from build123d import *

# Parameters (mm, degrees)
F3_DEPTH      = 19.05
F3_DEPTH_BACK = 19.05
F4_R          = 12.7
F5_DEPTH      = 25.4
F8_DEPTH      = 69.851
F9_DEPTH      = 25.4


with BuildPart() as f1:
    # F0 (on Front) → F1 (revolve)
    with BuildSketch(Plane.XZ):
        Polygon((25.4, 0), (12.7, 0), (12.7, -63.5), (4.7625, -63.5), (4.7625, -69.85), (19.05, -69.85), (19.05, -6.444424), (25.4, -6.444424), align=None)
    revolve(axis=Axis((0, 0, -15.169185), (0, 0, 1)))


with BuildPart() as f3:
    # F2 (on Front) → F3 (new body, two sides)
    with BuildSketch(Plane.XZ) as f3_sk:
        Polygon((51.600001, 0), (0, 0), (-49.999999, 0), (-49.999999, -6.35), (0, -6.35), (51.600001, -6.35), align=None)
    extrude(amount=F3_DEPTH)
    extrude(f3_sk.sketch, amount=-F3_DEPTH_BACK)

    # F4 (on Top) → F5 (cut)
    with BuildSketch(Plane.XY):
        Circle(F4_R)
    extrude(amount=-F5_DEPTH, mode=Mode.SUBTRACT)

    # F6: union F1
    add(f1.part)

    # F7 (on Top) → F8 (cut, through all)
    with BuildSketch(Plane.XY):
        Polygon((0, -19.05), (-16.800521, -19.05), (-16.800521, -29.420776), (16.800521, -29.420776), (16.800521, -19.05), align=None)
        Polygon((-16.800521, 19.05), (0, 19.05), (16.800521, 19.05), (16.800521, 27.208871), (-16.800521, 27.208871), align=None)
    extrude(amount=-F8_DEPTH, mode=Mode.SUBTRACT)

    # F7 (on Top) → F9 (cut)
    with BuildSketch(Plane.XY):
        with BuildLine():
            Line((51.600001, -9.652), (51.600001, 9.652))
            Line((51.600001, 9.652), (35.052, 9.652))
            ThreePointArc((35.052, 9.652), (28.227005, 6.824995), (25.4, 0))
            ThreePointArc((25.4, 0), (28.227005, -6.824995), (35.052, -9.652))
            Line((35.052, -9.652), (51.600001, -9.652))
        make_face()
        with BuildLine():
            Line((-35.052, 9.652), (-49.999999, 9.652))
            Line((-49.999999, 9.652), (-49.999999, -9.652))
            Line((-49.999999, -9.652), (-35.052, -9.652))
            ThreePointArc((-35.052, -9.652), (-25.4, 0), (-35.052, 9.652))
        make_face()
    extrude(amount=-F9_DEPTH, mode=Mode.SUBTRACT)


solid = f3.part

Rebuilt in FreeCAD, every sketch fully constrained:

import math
import FreeCAD as App
import Part
import Sketcher
from FreeCAD import Vector
Q = App.Units.Quantity

doc = App.newDocument("Part")
body = doc.addObject("PartDesign::Body", "Body")

# Sketch on XZ plane
sketch1 = doc.addObject("Sketcher::SketchObject", "Sketch")
body.addObject(sketch1)
sketch1.AttachmentSupport = (doc.XZ_Plane, [""])
sketch1.MapMode = "FlatFace"
sketch1.addGeometry([
    Part.LineSegment(Vector(25, 0, 0), Vector(13, 0, 0)),  # 0
    Part.LineSegment(Vector(13, 0, 0), Vector(13, -64, 0)),  # 1
    Part.LineSegment(Vector(13, -64, 0), Vector(5, -64, 0)),  # 2
    Part.LineSegment(Vector(5, -64, 0), Vector(5, -70, 0)),  # 3
    Part.LineSegment(Vector(5, -70, 0), Vector(19, -70, 0)),  # 4
    Part.LineSegment(Vector(19, -70, 0), Vector(19, -6, 0)),  # 5
    Part.LineSegment(Vector(19, -6, 0), Vector(25, -6, 0)),  # 6
    Part.LineSegment(Vector(25, -6, 0), Vector(25, 0, 0)),  # 7
], False)
sketch1.addConstraint([
    Sketcher.Constraint("Coincident", 0, 2, 1, 1),
    Sketcher.Constraint("Coincident", 1, 2, 2, 1),
    Sketcher.Constraint("Coincident", 2, 2, 3, 1),
    Sketcher.Constraint("Coincident", 3, 2, 4, 1),
    Sketcher.Constraint("Coincident", 4, 2, 5, 1),
    Sketcher.Constraint("Coincident", 5, 2, 6, 1),
    Sketcher.Constraint("Coincident", 6, 2, 7, 1),
    Sketcher.Constraint("Coincident", 7, 2, 0, 1),
    Sketcher.Constraint("Horizontal", 0),
    Sketcher.Constraint("Vertical", 1),
    Sketcher.Constraint("Horizontal", 2),
    Sketcher.Constraint("Vertical", 3),
    Sketcher.Constraint("Horizontal", 4),
    Sketcher.Constraint("Vertical", 5),
    Sketcher.Constraint("Horizontal", 6),
    Sketcher.Constraint("Vertical", 7),
    Sketcher.Constraint("PointOnObject", 0, 2, -1),
    Sketcher.Constraint("Equal", 6, 3),
    Sketcher.Constraint("DistanceX", 0, 2, 0, 1, Q("0.5 in")),
    Sketcher.Constraint("DistanceY", 1, 2, 1, 1, Q("2.5 in")),
    Sketcher.Constraint("DistanceX", -1, 1, 6, 2, Q("1 in")),
    Sketcher.Constraint("DistanceX", 6, 1, 6, 2, Q("0.25 in")),
    Sketcher.Constraint("DistanceX", 2, 2, 2, 1, Q("0.3125 in")),
    Sketcher.Constraint("DistanceY", 5, 1, 5, 2, 63.405576),
])
revolution = doc.addObject("PartDesign::Revolution", "Revolution")
body.addObject(revolution)
revolution.Profile = sketch1
revolution.ReferenceAxis = (sketch1, ["V_Axis"])
revolution.Angle = 360
body2 = doc.addObject("PartDesign::Body", "Body001")

# Sketch on XZ plane
sketch2 = doc.addObject("Sketcher::SketchObject", "Sketch001")
body2.addObject(sketch2)
sketch2.AttachmentSupport = (doc.getObject("XZ_Plane001"), [""])
sketch2.MapMode = "FlatFace"
sketch2.addGeometry([
    Part.LineSegment(Vector(52, 0, 0), Vector(-50, 0, 0)),
    Part.LineSegment(Vector(-50, 0, 0), Vector(-50, -6, 0)),
    Part.LineSegment(Vector(-50, -6, 0), Vector(52, -6, 0)),
    Part.LineSegment(Vector(52, -6, 0), Vector(52, 0, 0)),
], False)
sketch2.addConstraint([
    Sketcher.Constraint("Coincident", 0, 2, 1, 1),
    Sketcher.Constraint("Coincident", 1, 2, 2, 1),
    Sketcher.Constraint("Coincident", 2, 2, 3, 1),
    Sketcher.Constraint("Coincident", 3, 2, 0, 1),
    Sketcher.Constraint("Horizontal", 0),
    Sketcher.Constraint("Vertical", 1),
    Sketcher.Constraint("Horizontal", 2),
    Sketcher.Constraint("Vertical", 3),
    Sketcher.Constraint("PointOnObject", 0, 2, -1),
    Sketcher.Constraint("DistanceX", 0, 2, 0, 1, Q("4 in")),
    Sketcher.Constraint("DistanceY", 1, 2, 1, 1, Q("0.25 in")),
    Sketcher.Constraint("DistanceX", 0, 2, -1, 1, 49.999999),
])
pad1 = doc.addObject("PartDesign::Pad", "Pad")
body2.addObject(pad1)
pad1.Profile = sketch2
pad1.Type = "TwoLengths"
pad1.Length = Q("0.75 in")
pad1.Length2 = Q("0.75 in")

# Sketch on XY plane
sketch3 = doc.addObject("Sketcher::SketchObject", "Sketch002")
body2.addObject(sketch3)
sketch3.AttachmentSupport = (doc.getObject("XY_Plane001"), [""])
sketch3.MapMode = "FlatFace"
sketch3.addGeometry(Part.Circle(Vector(0, 0, 0), Vector(0, 0, 1), 13), False)
sketch3.addConstraint([
    Sketcher.Constraint("Coincident", 0, 3, -1, 1),
    Sketcher.Constraint("Diameter", 0, Q("1 in")),
])
pocket1 = doc.addObject("PartDesign::Pocket", "Pocket")
body2.addObject(pocket1)
pocket1.Profile = sketch3
pocket1.Length = Q("1 in")
doc.recompute()

boolean = doc.addObject("PartDesign::Boolean", "Boolean")
body2.addObject(boolean)
boolean.Type = "Fuse"
boolean.addObjects([body])

# Sketch on XY plane
sketch4 = doc.addObject("Sketcher::SketchObject", "Sketch003")
body2.addObject(sketch4)
sketch4.AttachmentSupport = (doc.getObject("XY_Plane001"), [""])
sketch4.MapMode = "FlatFace"
sketch4.addGeometry([
    Part.LineSegment(Vector(-17, -19, 0), Vector(-17, -29, 0)),  # 0
    Part.LineSegment(Vector(-17, -29, 0), Vector(17, -29, 0)),  # 1
    Part.LineSegment(Vector(17, -29, 0), Vector(17, -19, 0)),  # 2
    Part.LineSegment(Vector(17, -19, 0), Vector(-17, -19, 0)),  # 3
    Part.LineSegment(Vector(-17, 19, 0), Vector(17, 19, 0)),  # 4
    Part.LineSegment(Vector(17, 19, 0), Vector(17, 27, 0)),  # 5
    Part.LineSegment(Vector(17, 27, 0), Vector(-17, 27, 0)),  # 6
    Part.LineSegment(Vector(-17, 27, 0), Vector(-17, 19, 0)),  # 7
], False)
sketch4.addConstraint([
    Sketcher.Constraint("Coincident", 0, 2, 1, 1),
    Sketcher.Constraint("Coincident", 1, 2, 2, 1),
    Sketcher.Constraint("Coincident", 2, 2, 3, 1),
    Sketcher.Constraint("Coincident", 3, 2, 0, 1),
    Sketcher.Constraint("Coincident", 4, 2, 5, 1),
    Sketcher.Constraint("Coincident", 5, 2, 6, 1),
    Sketcher.Constraint("Coincident", 6, 2, 7, 1),
    Sketcher.Constraint("Coincident", 7, 2, 4, 1),
    Sketcher.Constraint("Vertical", 0),
    Sketcher.Constraint("Horizontal", 1),
    Sketcher.Constraint("Vertical", 2),
    Sketcher.Constraint("Horizontal", 3),
    Sketcher.Constraint("Horizontal", 4),
    Sketcher.Constraint("Vertical", 5),
    Sketcher.Constraint("Horizontal", 6),
    Sketcher.Constraint("Vertical", 7),
    Sketcher.Constraint("Symmetric", 3, 2, 4, 2, -1, 1),
    Sketcher.Constraint("Vertical", 2, 2, 4, 2),
    Sketcher.Constraint("Vertical", 3, 2, 6, 2),
    Sketcher.Constraint("DistanceY", 2, 2, 4, 2, Q("1.5 in")),
    Sketcher.Constraint("DistanceY", 5, 1, 5, 2, 8.158871),
    Sketcher.Constraint("DistanceX", 1, 1, 1, 2, 33.601042),
    Sketcher.Constraint("DistanceY", 0, 2, 0, 1, 10.370776),
])
pocket2 = doc.addObject("PartDesign::Pocket", "Pocket001")
body2.addObject(pocket2)
pocket2.Profile = sketch4
pocket2.Type = "ThroughAll"

# Sketch on XY plane
sketch5 = doc.addObject("Sketcher::SketchObject", "Sketch004")
body2.addObject(sketch5)
sketch5.AttachmentSupport = (doc.getObject("XY_Plane001"), [""])
sketch5.MapMode = "FlatFace"
sketch5.addGeometry([
    Part.LineSegment(Vector(52, -10, 0), Vector(52, 10, 0)),  # 0
    Part.LineSegment(Vector(52, 10, 0), Vector(35, 10, 0)),  # 1
    Part.ArcOfCircle(Part.Circle(Vector(35, 0, 0), Vector(0, 0, 1), 10), math.radians(90), math.radians(180)),  # 2
    Part.ArcOfCircle(Part.Circle(Vector(35, 0, 0), Vector(0, 0, 1), 10), math.radians(180), math.radians(270)),  # 3
    Part.LineSegment(Vector(35, -10, 0), Vector(52, -10, 0)),  # 4
    Part.LineSegment(Vector(-35, 10, 0), Vector(-50, 10, 0)),  # 5
    Part.LineSegment(Vector(-50, 10, 0), Vector(-50, -10, 0)),  # 6
    Part.LineSegment(Vector(-50, -10, 0), Vector(-35, -10, 0)),  # 7
    Part.ArcOfCircle(Part.Circle(Vector(-35, 0, 0), Vector(0, 0, 1), 10), math.radians(-90), math.radians(90)),  # 8
], False)
sketch5.addConstraint([
    Sketcher.Constraint("Coincident", 0, 2, 1, 1),
    Sketcher.Constraint("Tangent", 1, 2, 2, 1),
    Sketcher.Constraint("Tangent", 2, 2, 3, 1),
    Sketcher.Constraint("Tangent", 3, 2, 4, 1),
    Sketcher.Constraint("Coincident", 4, 2, 0, 1),
    Sketcher.Constraint("Coincident", 5, 2, 6, 1),
    Sketcher.Constraint("Coincident", 6, 2, 7, 1),
    Sketcher.Constraint("Tangent", 7, 2, 8, 1),
    Sketcher.Constraint("Tangent", 8, 2, 5, 1),
    Sketcher.Constraint("Vertical", 0),
    Sketcher.Constraint("Horizontal", 1),
    Sketcher.Constraint("Horizontal", 4),
    Sketcher.Constraint("Horizontal", 5),
    Sketcher.Constraint("Vertical", 6),
    Sketcher.Constraint("Horizontal", 7),
    Sketcher.Constraint("Equal", 2, 3),
    Sketcher.Constraint("Equal", 3, 8),
    Sketcher.Constraint("Symmetric", 2, 3, 8, 3, -1, 1),
    Sketcher.Constraint("PointOnObject", 2, 3, -1),
    Sketcher.Constraint("PointOnObject", 2, 2, -1),
    Sketcher.Constraint("Radius", 2, Q("0.38 in")),
    Sketcher.Constraint("DistanceX", -1, 1, 2, 2, Q("1 in")),
    Sketcher.Constraint("DistanceX", 1, 2, 1, 1, 16.548001),
    Sketcher.Constraint("DistanceX", 5, 2, 5, 1, 14.947999),
])
pocket3 = doc.addObject("PartDesign::Pocket", "Pocket002")
body2.addObject(pocket3)
pocket3.Profile = sketch5
pocket3.Length = Q("1 in")

doc.recompute()
